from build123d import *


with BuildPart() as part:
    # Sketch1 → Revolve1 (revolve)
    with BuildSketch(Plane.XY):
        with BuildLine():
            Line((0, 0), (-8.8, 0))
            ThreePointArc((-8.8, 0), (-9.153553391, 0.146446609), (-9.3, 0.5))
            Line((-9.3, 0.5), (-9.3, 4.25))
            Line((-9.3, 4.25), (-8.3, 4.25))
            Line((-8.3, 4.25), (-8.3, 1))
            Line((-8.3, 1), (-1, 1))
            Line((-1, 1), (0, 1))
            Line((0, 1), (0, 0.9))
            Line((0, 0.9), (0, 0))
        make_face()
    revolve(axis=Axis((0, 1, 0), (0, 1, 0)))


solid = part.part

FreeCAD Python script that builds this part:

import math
import FreeCAD as App
import Part
import Sketcher

V = App.Vector

doc = App.newDocument("Part")
params = doc.addObject("Spreadsheet::Sheet", "Params")
for row, (alias, value) in enumerate([
    ("sketch1_radius", "0.5 mm"),
    ("sketch1_width", "1 mm"),
    ("sketch1_width2", "8.8 mm"),
    ("sketch1_height", "3.25 mm"),
    ("revolution_angle", "360 deg"),
], start=1):
    params.set(f"A{row}", alias)
    params.set(f"B{row}", "=" + value)
    params.setAlias(f"B{row}", alias)

body = doc.addObject("PartDesign::Body", "Body")

# Sketch on XY plane
sketch1 = body.newObject("Sketcher::SketchObject", "Sketch")
sketch1.AttachmentSupport = (doc.getObject("XY_Plane"), [""])
sketch1.MapMode = "FlatFace"
sketch1.addGeometry([
    Part.LineSegment(V(-8.8, 0, 0), V(0, 0, 0)),  # 0
    Part.LineSegment(V(0, 0, 0), V(0, 1, 0)),  # 1
    Part.LineSegment(V(0, 1, 0), V(-8.3, 1, 0)),  # 2
    Part.LineSegment(V(-8.3, 1, 0), V(-8.3, 4.25, 0)),  # 3
    Part.LineSegment(V(-8.3, 4.25, 0), V(-9.3, 4.25, 0)),  # 4
    Part.LineSegment(V(-9.3, 4.25, 0), V(-9.3, 0.5, 0)),  # 5
    Part.ArcOfCircle(Part.Circle(V(-8.8, 0.5, 0), V(0, 0, 1), 0.5), math.radians(180), math.radians(270)),  # 6
], False)
sketch1.addConstraint([
    Sketcher.Constraint("Coincident", 0, 2, 1, 1),
    Sketcher.Constraint("Coincident", 1, 2, 2, 1),
    Sketcher.Constraint("Coincident", 2, 2, 3, 1),
    Sketcher.Constraint("Coincident", 3, 2, 4, 1),
    Sketcher.Constraint("Coincident", 4, 2, 5, 1),
    Sketcher.Constraint("Tangent", 5, 2, 6, 1),
    Sketcher.Constraint("Tangent", 6, 2, 0, 1),
    Sketcher.Constraint("Horizontal", 0),
    Sketcher.Constraint("Vertical", 1),
    Sketcher.Constraint("Horizontal", 2),
    Sketcher.Constraint("Vertical", 3),
    Sketcher.Constraint("Horizontal", 4),
    Sketcher.Constraint("Vertical", 5),
    Sketcher.Constraint("Coincident", 0, 2, -1, 1),
    Sketcher.Constraint("Equal", 4, 1),
    Sketcher.Constraint("Radius", 6, 0.5),
    Sketcher.Constraint("DistanceX", 4, 2, 4, 1, 1.0),
    Sketcher.Constraint("DistanceX", 0, 1, 0, 2, 8.8),
    Sketcher.Constraint("DistanceY", 3, 1, 3, 2, 3.25),
])
sketch1.setExpression("Constraints[15]", "Params.sketch1_radius")
sketch1.setExpression("Constraints[16]", "Params.sketch1_width")
sketch1.setExpression("Constraints[17]", "Params.sketch1_width2")
sketch1.setExpression("Constraints[18]", "Params.sketch1_height")
revolution = body.newObject("PartDesign::Revolution", "Revolution")
revolution.Profile = sketch1
revolution.ReferenceAxis = (sketch1, ["V_Axis"])
revolution.setExpression("Angle", "Params.revolution_angle")

doc.recompute()
